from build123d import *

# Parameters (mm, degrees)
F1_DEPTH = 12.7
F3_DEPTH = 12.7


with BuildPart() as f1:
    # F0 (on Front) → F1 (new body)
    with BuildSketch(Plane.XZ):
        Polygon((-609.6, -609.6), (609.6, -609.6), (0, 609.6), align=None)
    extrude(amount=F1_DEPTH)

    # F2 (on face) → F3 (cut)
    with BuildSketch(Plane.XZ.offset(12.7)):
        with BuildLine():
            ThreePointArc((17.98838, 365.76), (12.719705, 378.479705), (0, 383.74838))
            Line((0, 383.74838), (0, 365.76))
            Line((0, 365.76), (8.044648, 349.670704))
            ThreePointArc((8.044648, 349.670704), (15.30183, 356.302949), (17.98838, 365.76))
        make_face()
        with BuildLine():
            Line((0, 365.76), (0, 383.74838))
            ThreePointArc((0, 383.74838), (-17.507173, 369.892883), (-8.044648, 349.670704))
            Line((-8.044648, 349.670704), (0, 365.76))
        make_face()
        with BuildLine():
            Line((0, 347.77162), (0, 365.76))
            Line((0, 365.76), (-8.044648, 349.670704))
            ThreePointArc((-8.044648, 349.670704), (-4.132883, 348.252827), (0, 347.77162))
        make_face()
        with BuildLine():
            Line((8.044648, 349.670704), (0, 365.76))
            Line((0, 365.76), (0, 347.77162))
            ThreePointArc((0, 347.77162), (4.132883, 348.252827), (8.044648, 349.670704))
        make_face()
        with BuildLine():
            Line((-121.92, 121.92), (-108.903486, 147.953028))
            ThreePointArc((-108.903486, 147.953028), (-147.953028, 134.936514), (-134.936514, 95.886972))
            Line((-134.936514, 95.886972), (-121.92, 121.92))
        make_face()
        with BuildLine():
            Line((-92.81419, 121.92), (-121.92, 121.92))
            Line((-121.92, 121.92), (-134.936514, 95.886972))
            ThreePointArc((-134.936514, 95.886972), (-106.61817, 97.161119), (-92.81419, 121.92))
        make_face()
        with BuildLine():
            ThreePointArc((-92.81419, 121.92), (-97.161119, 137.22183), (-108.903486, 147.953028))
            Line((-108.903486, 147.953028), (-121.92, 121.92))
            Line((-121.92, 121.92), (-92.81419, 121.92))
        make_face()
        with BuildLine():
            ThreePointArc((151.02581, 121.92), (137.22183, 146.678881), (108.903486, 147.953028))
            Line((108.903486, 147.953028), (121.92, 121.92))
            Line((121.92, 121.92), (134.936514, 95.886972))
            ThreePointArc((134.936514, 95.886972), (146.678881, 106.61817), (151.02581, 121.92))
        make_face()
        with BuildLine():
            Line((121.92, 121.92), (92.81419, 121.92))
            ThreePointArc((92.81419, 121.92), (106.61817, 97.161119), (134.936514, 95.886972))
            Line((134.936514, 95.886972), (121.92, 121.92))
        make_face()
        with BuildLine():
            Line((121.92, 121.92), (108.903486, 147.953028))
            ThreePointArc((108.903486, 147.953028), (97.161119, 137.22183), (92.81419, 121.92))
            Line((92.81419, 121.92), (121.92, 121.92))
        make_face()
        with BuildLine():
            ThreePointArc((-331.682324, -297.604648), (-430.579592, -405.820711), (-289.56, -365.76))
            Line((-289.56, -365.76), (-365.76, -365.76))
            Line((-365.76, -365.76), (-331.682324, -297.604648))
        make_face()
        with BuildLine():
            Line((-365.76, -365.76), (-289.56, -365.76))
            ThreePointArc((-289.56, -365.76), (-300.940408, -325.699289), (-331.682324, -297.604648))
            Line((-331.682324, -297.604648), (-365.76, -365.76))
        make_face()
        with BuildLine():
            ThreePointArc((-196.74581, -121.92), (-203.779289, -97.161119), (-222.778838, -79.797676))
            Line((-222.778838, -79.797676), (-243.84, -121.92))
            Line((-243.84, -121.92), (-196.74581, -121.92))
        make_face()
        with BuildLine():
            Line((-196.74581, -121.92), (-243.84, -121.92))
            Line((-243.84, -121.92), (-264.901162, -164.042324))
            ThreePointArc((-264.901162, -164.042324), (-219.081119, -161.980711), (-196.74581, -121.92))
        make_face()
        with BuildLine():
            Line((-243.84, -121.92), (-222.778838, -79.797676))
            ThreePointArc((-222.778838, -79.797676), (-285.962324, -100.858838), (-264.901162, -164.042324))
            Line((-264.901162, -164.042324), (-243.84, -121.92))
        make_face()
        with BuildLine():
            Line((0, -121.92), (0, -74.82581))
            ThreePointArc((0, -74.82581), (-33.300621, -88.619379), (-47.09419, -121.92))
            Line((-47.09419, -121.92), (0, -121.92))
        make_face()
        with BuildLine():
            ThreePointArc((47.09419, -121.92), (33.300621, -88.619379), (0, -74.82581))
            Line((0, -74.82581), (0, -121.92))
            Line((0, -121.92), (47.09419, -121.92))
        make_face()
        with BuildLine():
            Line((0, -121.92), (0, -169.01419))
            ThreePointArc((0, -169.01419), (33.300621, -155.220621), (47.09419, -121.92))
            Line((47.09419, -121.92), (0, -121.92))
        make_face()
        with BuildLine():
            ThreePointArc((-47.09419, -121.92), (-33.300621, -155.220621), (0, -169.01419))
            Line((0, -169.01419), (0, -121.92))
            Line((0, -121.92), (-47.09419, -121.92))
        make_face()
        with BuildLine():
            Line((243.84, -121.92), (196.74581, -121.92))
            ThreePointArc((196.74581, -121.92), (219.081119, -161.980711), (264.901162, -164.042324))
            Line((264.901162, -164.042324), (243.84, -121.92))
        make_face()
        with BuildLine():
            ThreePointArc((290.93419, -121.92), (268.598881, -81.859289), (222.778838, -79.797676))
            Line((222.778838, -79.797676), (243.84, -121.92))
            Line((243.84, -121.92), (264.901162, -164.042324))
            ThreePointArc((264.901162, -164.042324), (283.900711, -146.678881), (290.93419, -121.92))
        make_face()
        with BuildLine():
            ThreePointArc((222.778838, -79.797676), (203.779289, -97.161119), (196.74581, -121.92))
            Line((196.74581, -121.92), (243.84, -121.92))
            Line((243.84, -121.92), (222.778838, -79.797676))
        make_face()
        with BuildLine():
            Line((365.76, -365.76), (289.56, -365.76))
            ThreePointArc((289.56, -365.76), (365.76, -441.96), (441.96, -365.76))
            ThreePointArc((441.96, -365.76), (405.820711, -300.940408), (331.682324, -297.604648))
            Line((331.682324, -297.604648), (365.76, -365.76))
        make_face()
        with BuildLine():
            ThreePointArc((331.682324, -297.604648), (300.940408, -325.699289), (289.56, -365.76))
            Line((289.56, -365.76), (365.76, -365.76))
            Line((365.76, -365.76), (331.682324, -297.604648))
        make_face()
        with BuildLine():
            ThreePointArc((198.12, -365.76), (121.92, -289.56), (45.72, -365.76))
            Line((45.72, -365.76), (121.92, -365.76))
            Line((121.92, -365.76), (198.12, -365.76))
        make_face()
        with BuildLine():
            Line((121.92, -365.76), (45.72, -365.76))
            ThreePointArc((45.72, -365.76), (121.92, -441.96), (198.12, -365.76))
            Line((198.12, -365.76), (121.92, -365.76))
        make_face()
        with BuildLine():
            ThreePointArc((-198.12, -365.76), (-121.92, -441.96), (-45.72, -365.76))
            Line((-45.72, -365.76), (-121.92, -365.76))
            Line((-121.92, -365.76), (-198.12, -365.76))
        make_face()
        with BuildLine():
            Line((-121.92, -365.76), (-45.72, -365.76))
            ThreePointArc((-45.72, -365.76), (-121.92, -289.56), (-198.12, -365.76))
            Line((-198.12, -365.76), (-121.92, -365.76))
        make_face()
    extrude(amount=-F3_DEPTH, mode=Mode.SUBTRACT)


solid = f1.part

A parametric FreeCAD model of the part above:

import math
import FreeCAD as App
import Part
import Sketcher
from FreeCAD import Vector
Q = App.Units.Quantity


def add_polygon(sketch, points):
    """Adds a closed chain of lines whose ends are joined by coincident constraints."""
    first, n = sketch.GeometryCount, len(points)
    for a, b in zip(points, points[1:] + points[:1]):
        sketch.addGeometry(Part.LineSegment(App.Vector(*a, 0), App.Vector(*b, 0)), False)
    for i in range(n):
        sketch.addConstraint(Sketcher.Constraint("Coincident", first + i, 2, first + (i + 1) % n, 1))

doc = App.newDocument("Part")
body = doc.addObject("PartDesign::Body", "Body")

# Sketch on XZ plane
sketch1 = body.newObject("Sketcher::SketchObject", "Sketch")
sketch1.AttachmentSupport = (doc.getObject("XZ_Plane"), [""])
sketch1.MapMode = "FlatFace"
add_polygon(sketch1, [(-610, -610), (610, -610), (0, 610)])  # lines 0-2
sketch1.addConstraint([
    Sketcher.Constraint("Horizontal", 0),
    Sketcher.Constraint("PointOnObject", 1, 2, -2),
    Sketcher.Constraint("Equal", 1, 2),
    Sketcher.Constraint("DistanceX", 0, 1, 0, 2, Q("48 in")),
    Sketcher.Constraint("DistanceY", 0, 2, -1, 1, Q("24 in")),
    Sketcher.Constraint("DistanceY", -1, 1, 1, 2, Q("24 in")),
])
pad1 = body.newObject("PartDesign::Pad", "Pad")
pad1.Profile = sketch1
pad1.Length = Q("0.5 in")

# Sketch on XZ plane
sketch2 = body.newObject("Sketcher::SketchObject", "Sketch001")
sketch2.AttachmentSupport = (doc.getObject("XZ_Plane"), [""])
sketch2.MapMode = "FlatFace"
sketch2.AttachmentOffset = App.Placement(Vector(0, 0, 0.5 * 25.4), App.Rotation())
sketch2.addGeometry([
    Part.ArcOfCircle(Part.Circle(Vector(0, 366, 0), Vector(0, 0, 1), 18), math.radians(0), math.radians(90)),  # 0
    Part.ArcOfCircle(Part.Circle(Vector(0, 366, 0), Vector(0, 0, 1), 18), math.radians(90), math.radians(243)),  # 1
    Part.ArcOfCircle(Part.Circle(Vector(0, 366, 0), Vector(0, 0, 1), 18), math.radians(-117), math.radians(-90)),  # 2
    Part.ArcOfCircle(Part.Circle(Vector(0, 366, 0), Vector(0, 0, 1), 18), math.radians(-90), math.radians(-63)),  # 3
    Part.ArcOfCircle(Part.Circle(Vector(0, 366, 0), Vector(0, 0, 1), 18), math.radians(-63), math.radians(0)),  # 4
    Part.ArcOfCircle(Part.Circle(Vector(-122, 122, 0), Vector(0, 0, 1), 29), math.radians(63), math.radians(243)),  # 5
    Part.ArcOfCircle(Part.Circle(Vector(-122, 122, 0), Vector(0, 0, 1), 29), math.radians(-117), math.radians(0)),  # 6
    Part.ArcOfCircle(Part.Circle(Vector(-122, 122, 0), Vector(0, 0, 1), 29), math.radians(0), math.radians(63)),  # 7
    Part.ArcOfCircle(Part.Circle(Vector(122, 122, 0), Vector(0, 0, 1), 29), math.radians(0), math.radians(117)),  # 8
    Part.ArcOfCircle(Part.Circle(Vector(122, 122, 0), Vector(0, 0, 1), 29), math.radians(117), math.radians(180)),  # 9
    Part.ArcOfCircle(Part.Circle(Vector(122, 122, 0), Vector(0, 0, 1), 29), math.radians(180), math.radians(297)),  # 10
    Part.ArcOfCircle(Part.Circle(Vector(122, 122, 0), Vector(0, 0, 1), 29), math.radians(-63), math.radians(0)),  # 11
    Part.ArcOfCircle(Part.Circle(Vector(-366, -366, 0), Vector(0, 0, 1), 76), math.radians(63), math.radians(360)),  # 12
    Part.ArcOfCircle(Part.Circle(Vector(-366, -366, 0), Vector(0, 0, 1), 76), math.radians(0), math.radians(63)),  # 13
    Part.ArcOfCircle(Part.Circle(Vector(-244, -122, 0), Vector(0, 0, 1), 47), math.radians(0), math.radians(63)),  # 14
    Part.ArcOfCircle(Part.Circle(Vector(-244, -122, 0), Vector(0, 0, 1), 47), math.radians(63), math.radians(243)),  # 15
    Part.ArcOfCircle(Part.Circle(Vector(-244, -122, 0), Vector(0, 0, 1), 47), math.radians(-117), math.radians(0)),  # 16
    Part.ArcOfCircle(Part.Circle(Vector(0, -122, 0), Vector(0, 0, 1), 47), math.radians(90), math.radians(180)),  # 17
    Part.ArcOfCircle(Part.Circle(Vector(0, -122, 0), Vector(0, 0, 1), 47), math.radians(-180), math.radians(-90)),  # 18
    Part.ArcOfCircle(Part.Circle(Vector(0, -122, 0), Vector(0, 0, 1), 47), math.radians(-90), math.radians(0)),  # 19
    Part.ArcOfCircle(Part.Circle(Vector(0, -122, 0), Vector(0, 0, 1), 47), math.radians(0), math.radians(90)),  # 20
    Part.ArcOfCircle(Part.Circle(Vector(244, -122, 0), Vector(0, 0, 1), 47), math.radians(180), math.radians(297)),  # 21
    Part.ArcOfCircle(Part.Circle(Vector(244, -122, 0), Vector(0, 0, 1), 47), math.radians(-63), math.radians(0)),  # 22
    Part.ArcOfCircle(Part.Circle(Vector(244, -122, 0), Vector(0, 0, 1), 47), math.radians(0), math.radians(117)),  # 23
    Part.ArcOfCircle(Part.Circle(Vector(244, -122, 0), Vector(0, 0, 1), 47), math.radians(117), math.radians(180)),  # 24
    Part.ArcOfCircle(Part.Circle(Vector(366, -366, 0), Vector(0, 0, 1), 76), math.radians(180), math.radians(360)),  # 25
    Part.ArcOfCircle(Part.Circle(Vector(366, -366, 0), Vector(0, 0, 1), 76), math.radians(0), math.radians(117)),  # 26
    Part.ArcOfCircle(Part.Circle(Vector(366, -366, 0), Vector(0, 0, 1), 76), math.radians(117), math.radians(180)),  # 27
    Part.Circle(Vector(122, -366, 0), Vector(0, 0, 1), 76),  # 28
    Part.Circle(Vector(-122, -366, 0), Vector(0, 0, 1), 76),  # 29
], False)
sketch2.addConstraint([
    Sketcher.Constraint("Tangent", 0, 2, 1, 1),
    Sketcher.Constraint("Tangent", 1, 2, 2, 1),
    Sketcher.Constraint("Tangent", 2, 2, 3, 1),
    Sketcher.Constraint("Tangent", 3, 2, 4, 1),
    Sketcher.Constraint("Tangent", 4, 2, 0, 1),
    Sketcher.Constraint("Tangent", 5, 2, 6, 1),
    Sketcher.Constraint("Tangent", 6, 2, 7, 1),
    Sketcher.Constraint("Tangent", 7, 2, 5, 1),
    Sketcher.Constraint("Tangent", 8, 2, 9, 1),
    Sketcher.Constraint("Tangent", 9, 2, 10, 1),
    Sketcher.Constraint("Tangent", 10, 2, 11, 1),
    Sketcher.Constraint("Tangent", 11, 2, 8, 1),
    Sketcher.Constraint("Tangent", 12, 1, 13, 2),
    Sketcher.Constraint("Coincident", 13, 1, 12, 2),
    Sketcher.Constraint("Tangent", 14, 2, 15, 1),
    Sketcher.Constraint("Tangent", 15, 2, 16, 1),
    Sketcher.Constraint("Tangent", 16, 2, 14, 1),
    Sketcher.Constraint("Tangent", 17, 2, 18, 1),
    Sketcher.Constraint("Tangent", 18, 2, 19, 1),
    Sketcher.Constraint("Tangent", 19, 2, 20, 1),
    Sketcher.Constraint("Tangent", 20, 2, 17, 1),
    Sketcher.Constraint("Tangent", 21, 2, 22, 1),
    Sketcher.Constraint("Tangent", 22, 2, 23, 1),
    Sketcher.Constraint("Tangent", 23, 2, 24, 1),
    Sketcher.Constraint("Tangent", 24, 2, 21, 1),
    Sketcher.Constraint("Tangent", 25, 2, 26, 1),
    Sketcher.Constraint("Tangent", 26, 2, 27, 1),
    Sketcher.Constraint("Tangent", 27, 2, 25, 1),
    Sketcher.Constraint("Equal", 0, 1),
    Sketcher.Constraint("Equal", 2, 3),
    Sketcher.Constraint("Equal", 7, 8),
    Sketcher.Constraint("Equal", 8, 9),
    Sketcher.Constraint("Equal", 16, 17),
    Sketcher.Constraint("Equal", 17, 18),
    Sketcher.Constraint("Equal", 20, 21),
    Sketcher.Constraint("Equal", 21, 22),
    Sketcher.Constraint("Equal", 12, 25),
    Sketcher.Constraint("Equal", 26, 28),
    Sketcher.Constraint("Equal", 28, 29),
    Sketcher.Constraint("Symmetric", 5, 3, 8, 3, -2),
    Sketcher.Constraint("Symmetric", 14, 3, 21, 3, -2),
    Sketcher.Constraint("Symmetric", 12, 3, 25, 3, -2),
    Sketcher.Constraint("Symmetric", 28, 3, 29, 3, -2),
    Sketcher.Constraint("Symmetric", 1, 2, 3, 2, -2),
    Sketcher.Constraint("Symmetric", 17, 2, 19, 2, -2),
    Sketcher.Constraint("PointOnObject", 0, 2, -2),
    Sketcher.Constraint("PointOnObject", 2, 2, -2),
    Sketcher.Constraint("PointOnObject", 18, 2, -2),
    Sketcher.Constraint("PointOnObject", 20, 2, -2),
    Sketcher.Constraint("Horizontal", 16, 3, 17, 3),
    Sketcher.Constraint("Horizontal", 27, 3, 28, 3),
    Sketcher.Constraint("Horizontal", 1, 3, 4, 2),
    Sketcher.Constraint("Horizontal", 11, 3, 6, 2),
    Sketcher.Constraint("Horizontal", 7, 2, 8, 2),
    Sketcher.Constraint("Horizontal", 6, 2, 9, 2),
    Sketcher.Constraint("Horizontal", 5, 2, 10, 2),
    Sketcher.Constraint("Horizontal", 9, 2, 11, 2),
    Sketcher.Constraint("Horizontal", 29, 3, 13, 1),
    Sketcher.Constraint("Horizontal", 24, 3, 16, 2),
    Sketcher.Constraint("Horizontal", 16, 2, 17, 2),
    Sketcher.Constraint("Horizontal", 15, 2, 21, 2),
    Sketcher.Constraint("Horizontal", 19, 2, 22, 2),
    Sketcher.Constraint("Horizontal", 14, 2, 23, 2),
    Sketcher.Constraint("Horizontal", 22, 2, 24, 2),
    Sketcher.Constraint("Horizontal", 13, 1, 25, 2),
    Sketcher.Constraint("Horizontal", 12, 1, 26, 2),
    Sketcher.Constraint("Horizontal", 25, 2, 27, 2),
    Sketcher.Constraint("Vertical", 11, 3, 28, 3),
    Sketcher.Constraint("Diameter", 28, Q("6 in")),
    Sketcher.Constraint("DistanceY", -1, 1, 0, 3, Q("14.3999999 in")),
    Sketcher.Constraint("DistanceX", 5, 3, -1, 1, Q("4.8 in")),
    Sketcher.Constraint("DistanceY", -1, 1, 5, 3, Q("4.8 in")),
    Sketcher.Constraint("DistanceX", 12, 3, -1, 1, Q("14.4 in")),
    Sketcher.Constraint("DistanceY", 12, 3, -1, 1, Q("14.4 in")),
    Sketcher.Constraint("DistanceX", 14, 3, -1, 1, Q("9.5999999 in")),
    Sketcher.Constraint("DistanceY", 14, 3, -1, 1, Q("4.8 in")),
    Sketcher.Constraint("Radius", 0, 17.988382),
    Sketcher.Constraint("Radius", 5, 29.10581),
    Sketcher.Constraint("Radius", 14, 47.094188),
    Sketcher.Constraint("DistanceX", 1, 2, -1, 1, 8.044648),
    Sketcher.Constraint("DistanceX", 15, 2, -1, 1, 264.901162),
    Sketcher.Constraint("DistanceY", 5, 2, 7, 3, 26.033029),
    Sketcher.Constraint("DistanceY", 6, 3, 7, 2, 26.033028),
    Sketcher.Constraint("DistanceY", 13, 3, 12, 1, 68.15535),
    Sketcher.Constraint("DistanceX", 14, 3, 14, 2, 21.06116),
])
pocket1 = body.newObject("PartDesign::Pocket", "Pocket")
pocket1.Profile = sketch2
pocket1.Length = Q("0.5 in")

doc.recompute()
